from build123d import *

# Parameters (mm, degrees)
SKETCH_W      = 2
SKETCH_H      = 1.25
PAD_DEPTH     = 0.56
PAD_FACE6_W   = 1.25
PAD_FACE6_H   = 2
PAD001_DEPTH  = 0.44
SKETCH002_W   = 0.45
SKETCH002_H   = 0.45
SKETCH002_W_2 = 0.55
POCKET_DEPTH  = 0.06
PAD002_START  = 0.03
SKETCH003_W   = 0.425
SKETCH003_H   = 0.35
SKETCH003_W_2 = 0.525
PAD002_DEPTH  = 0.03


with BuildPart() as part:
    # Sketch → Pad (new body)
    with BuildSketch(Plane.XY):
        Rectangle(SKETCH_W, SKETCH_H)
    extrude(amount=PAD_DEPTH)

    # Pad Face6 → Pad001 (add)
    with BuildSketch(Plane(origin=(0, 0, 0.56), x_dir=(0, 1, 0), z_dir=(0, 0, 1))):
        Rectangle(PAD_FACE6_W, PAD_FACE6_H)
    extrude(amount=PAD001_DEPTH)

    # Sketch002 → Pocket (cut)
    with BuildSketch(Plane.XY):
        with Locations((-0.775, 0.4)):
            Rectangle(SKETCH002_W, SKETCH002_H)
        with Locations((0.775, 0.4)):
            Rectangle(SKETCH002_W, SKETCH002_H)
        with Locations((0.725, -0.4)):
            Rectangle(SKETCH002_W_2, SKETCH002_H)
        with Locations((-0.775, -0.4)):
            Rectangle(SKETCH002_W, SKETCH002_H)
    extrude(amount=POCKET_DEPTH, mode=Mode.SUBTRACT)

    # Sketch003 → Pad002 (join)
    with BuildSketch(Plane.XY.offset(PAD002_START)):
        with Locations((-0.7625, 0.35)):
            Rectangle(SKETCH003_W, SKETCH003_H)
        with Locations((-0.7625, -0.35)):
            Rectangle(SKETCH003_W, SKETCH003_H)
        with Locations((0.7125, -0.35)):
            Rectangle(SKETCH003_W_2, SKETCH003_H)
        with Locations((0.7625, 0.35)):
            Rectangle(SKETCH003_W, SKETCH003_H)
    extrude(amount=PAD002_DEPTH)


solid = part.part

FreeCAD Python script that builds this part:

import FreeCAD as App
import Part
import Sketcher
from FreeCAD import Vector

doc = App.newDocument("Part")
body = doc.addObject("PartDesign::Body", "Body")

sketch1 = body.newObject("Sketcher::SketchObject", "Sketch")
sketch1.AttachmentSupport = (doc.getObject("XY_Plane"), [""])
sketch1.MapMode = "FlatFace"
sketch1.addGeometry(Part.LineSegment(Vector(-1, 0.6, 0), Vector(-1, -0.6, 0)), False)
sketch1.addGeometry(Part.LineSegment(Vector(-1, -0.6, 0), Vector(1, -0.6, 0)), False)
sketch1.addGeometry(Part.LineSegment(Vector(1, -0.6, 0), Vector(1, 0.6, 0)), False)
sketch1.addGeometry(Part.LineSegment(Vector(1, 0.6, 0), Vector(-1, 0.6, 0)), False)
sketch1.addConstraint(Sketcher.Constraint("Coincident", 0, 2, 1, 1))
sketch1.addConstraint(Sketcher.Constraint("Coincident", 1, 2, 2, 1))
sketch1.addConstraint(Sketcher.Constraint("Coincident", 2, 2, 3, 1))
sketch1.addConstraint(Sketcher.Constraint("Coincident", 3, 2, 0, 1))
sketch1.addConstraint(Sketcher.Constraint("Vertical", 0))
sketch1.addConstraint(Sketcher.Constraint("Horizontal", 1))
sketch1.addConstraint(Sketcher.Constraint("Vertical", 2))
sketch1.addConstraint(Sketcher.Constraint("Horizontal", 3))
sketch1.addConstraint(Sketcher.Constraint("Symmetric", 0, 2, 2, 2, -1, 1))
sketch1.addConstraint(Sketcher.Constraint("DistanceX", 1, 1, 1, 2, 2.0))
sketch1.addConstraint(Sketcher.Constraint("DistanceY", 0, 2, 0, 1, 1.25))
pad1 = body.newObject("PartDesign::Pad", "Pad")
pad1.Profile = sketch1
pad1.Length = 0.56

sketch2 = body.newObject("Sketcher::SketchObject", "Sketch001")
sketch2.AttachmentSupport = (doc.getObject("XY_Plane"), [""])
sketch2.MapMode = "FlatFace"
sketch2.AttachmentOffset = App.Placement(Vector(0, 0, 0.56), App.Rotation())
sketch2.addGeometry(Part.LineSegment(Vector(-1, -0.6, 0), Vector(1, -0.6, 0)), False)
sketch2.addGeometry(Part.LineSegment(Vector(1, -0.6, 0), Vector(1, 0.6, 0)), False)
sketch2.addGeometry(Part.LineSegment(Vector(1, 0.6, 0), Vector(-1, 0.6, 0)), False)
sketch2.addGeometry(Part.LineSegment(Vector(-1, 0.6, 0), Vector(-1, -0.6, 0)), False)
sketch2.addConstraint(Sketcher.Constraint("Coincident", 0, 2, 1, 1))
sketch2.addConstraint(Sketcher.Constraint("Coincident", 1, 2, 2, 1))
sketch2.addConstraint(Sketcher.Constraint("Coincident", 2, 2, 3, 1))
sketch2.addConstraint(Sketcher.Constraint("Coincident", 3, 2, 0, 1))
sketch2.addConstraint(Sketcher.Constraint("Horizontal", 0))
sketch2.addConstraint(Sketcher.Constraint("Vertical", 1))
sketch2.addConstraint(Sketcher.Constraint("Horizontal", 2))
sketch2.addConstraint(Sketcher.Constraint("Vertical", 3))
sketch2.addConstraint(Sketcher.Constraint("Symmetric", 0, 2, 2, 2, -1, 1))
sketch2.addConstraint(Sketcher.Constraint("DistanceX", 0, 1, 0, 2, 2.0))
sketch2.addConstraint(Sketcher.Constraint("DistanceY", 1, 1, 1, 2, 1.25))
pad2 = body.newObject("PartDesign::Pad", "Pad001")
pad2.Profile = sketch2
pad2.Length = 0.44

sketch3 = body.newObject("Sketcher::SketchObject", "Sketch002")
sketch3.AttachmentSupport = (doc.getObject("XY_Plane"), [""])
sketch3.MapMode = "FlatFace"
sketch3.addGeometry(Part.LineSegment(Vector(-1, 0.62, 0), Vector(-1, 0.17, 0)), False)
sketch3.addGeometry(Part.LineSegment(Vector(-1, 0.17, 0), Vector(-0.55, 0.17, 0)), False)
sketch3.addGeometry(Part.LineSegment(Vector(-0.55, 0.17, 0), Vector(-0.55, 0.62, 0)), False)
sketch3.addGeometry(Part.LineSegment(Vector(-0.55, 0.62, 0), Vector(-1, 0.62, 0)), False)
sketch3.addGeometry(Part.LineSegment(Vector(0.55, 0.62, 0), Vector(0.55, 0.17, 0)), False)
sketch3.addGeometry(Part.LineSegment(Vector(0.55, 0.17, 0), Vector(1, 0.17, 0)), False)
sketch3.addGeometry(Part.LineSegment(Vector(1, 0.17, 0), Vector(1, 0.62, 0)), False)
sketch3.addGeometry(Part.LineSegment(Vector(1, 0.62, 0), Vector(0.55, 0.62, 0)), False)
sketch3.addGeometry(Part.LineSegment(Vector(0.45, -0.17, 0), Vector(0.45, -0.62, 0)), False)
sketch3.addGeometry(Part.LineSegment(Vector(0.45, -0.62, 0), Vector(1, -0.62, 0)), False)
sketch3.addGeometry(Part.LineSegment(Vector(1, -0.62, 0), Vector(1, -0.17, 0)), False)
sketch3.addGeometry(Part.LineSegment(Vector(1, -0.17, 0), Vector(0.45, -0.17, 0)), False)
sketch3.addGeometry(Part.LineSegment(Vector(-1, -0.17, 0), Vector(-1, -0.62, 0)), False)
sketch3.addGeometry(Part.LineSegment(Vector(-1, -0.62, 0), Vector(-0.55, -0.62, 0)), False)
sketch3.addGeometry(Part.LineSegment(Vector(-0.55, -0.62, 0), Vector(-0.55, -0.17, 0)), False)
sketch3.addGeometry(Part.LineSegment(Vector(-0.55, -0.17, 0), Vector(-1, -0.17, 0)), False)
sketch3.addConstraint(Sketcher.Constraint("Coincident", 0, 2, 1, 1))
sketch3.addConstraint(Sketcher.Constraint("Coincident", 1, 2, 2, 1))
sketch3.addConstraint(Sketcher.Constraint("Coincident", 2, 2, 3, 1))
sketch3.addConstraint(Sketcher.Constraint("Coincident", 3, 2, 0, 1))
sketch3.addConstraint(Sketcher.Constraint("Coincident", 4, 2, 5, 1))
sketch3.addConstraint(Sketcher.Constraint("Coincident", 5, 2, 6, 1))
sketch3.addConstraint(Sketcher.Constraint("Coincident", 6, 2, 7, 1))
sketch3.addConstraint(Sketcher.Constraint("Coincident", 7, 2, 4, 1))
sketch3.addConstraint(Sketcher.Constraint("Coincident", 8, 2, 9, 1))
sketch3.addConstraint(Sketcher.Constraint("Coincident", 9, 2, 10, 1))
sketch3.addConstraint(Sketcher.Constraint("Coincident", 10, 2, 11, 1))
sketch3.addConstraint(Sketcher.Constraint("Coincident", 11, 2, 8, 1))
sketch3.addConstraint(Sketcher.Constraint("Coincident", 12, 2, 13, 1))
sketch3.addConstraint(Sketcher.Constraint("Coincident", 13, 2, 14, 1))
sketch3.addConstraint(Sketcher.Constraint("Coincident", 14, 2, 15, 1))
sketch3.addConstraint(Sketcher.Constraint("Coincident", 15, 2, 12, 1))
sketch3.addConstraint(Sketcher.Constraint("Vertical", 0))
sketch3.addConstraint(Sketcher.Constraint("Horizontal", 1))
sketch3.addConstraint(Sketcher.Constraint("Vertical", 2))
sketch3.addConstraint(Sketcher.Constraint("Horizontal", 3))
sketch3.addConstraint(Sketcher.Constraint("Vertical", 4))
sketch3.addConstraint(Sketcher.Constraint("Horizontal", 5))
sketch3.addConstraint(Sketcher.Constraint("Vertical", 6))
sketch3.addConstraint(Sketcher.Constraint("Horizontal", 7))
sketch3.addConstraint(Sketcher.Constraint("Vertical", 8))
sketch3.addConstraint(Sketcher.Constraint("Horizontal", 9))
sketch3.addConstraint(Sketcher.Constraint("Vertical", 10))
sketch3.addConstraint(Sketcher.Constraint("Horizontal", 11))
sketch3.addConstraint(Sketcher.Constraint("Vertical", 12))
sketch3.addConstraint(Sketcher.Constraint("Horizontal", 13))
sketch3.addConstraint(Sketcher.Constraint("Vertical", 14))
sketch3.addConstraint(Sketcher.Constraint("Horizontal", 15))
sketch3.addConstraint(Sketcher.Constraint("Symmetric", 3, 2, 9, 2, -1, 1))
sketch3.addConstraint(Sketcher.Constraint("Symmetric", 6, 2, 12, 2, -1, 1))
sketch3.addConstraint(Sketcher.Constraint("Symmetric", 4, 2, 14, 2, -1, 1))
sketch3.addConstraint(Sketcher.Constraint("Symmetric", 1, 2, 4, 2, -2))
sketch3.addConstraint(Sketcher.Constraint("Symmetric", 3, 2, 6, 2, -2))
sketch3.addConstraint(Sketcher.Constraint("Horizontal", 11, 2, 14, 2))
sketch3.addConstraint(Sketcher.Constraint("Equal", 15, 0))
sketch3.addConstraint(Sketcher.Constraint("DistanceX", 0, 2, -1, 1, 1.0))
sketch3.addConstraint(Sketcher.Constraint("DistanceX", 1, 2, 8, 2, 1.0))
sketch3.addConstraint(Sketcher.Constraint("DistanceX", 1, 1, 1, 2, 0.45))
sketch3.addConstraint(Sketcher.Constraint("DistanceY", 8, 2, 4, 2, 0.8))
pocket1 = body.newObject("PartDesign::Pocket", "Pocket")
pocket1.Profile = sketch3
pocket1.Length = 0.06
pocket1.Reversed = True

sketch4 = body.newObject("Sketcher::SketchObject", "Sketch003")
sketch4.AttachmentSupport = (doc.getObject("XY_Plane"), [""])
sketch4.MapMode = "FlatFace"
sketch4.AttachmentOffset = App.Placement(Vector(0, 0, 0.03), App.Rotation())
sketch4.addGeometry(Part.LineSegment(Vector(-0.97, 0.53, 0), Vector(-0.97, 0.17, 0)), False)
sketch4.addGeometry(Part.LineSegment(Vector(-0.97, 0.17, 0), Vector(-0.55, 0.17, 0)), False)
sketch4.addGeometry(Part.LineSegment(Vector(-0.55, 0.17, 0), Vector(-0.55, 0.53, 0)), False)
sketch4.addGeometry(Part.LineSegment(Vector(-0.55, 0.53, 0), Vector(-0.97, 0.53, 0)), False)
sketch4.addGeometry(Part.LineSegment(Vector(-0.97, -0.17, 0), Vector(-0.97, -0.53, 0)), False)
sketch4.addGeometry(Part.LineSegment(Vector(-0.97, -0.53, 0), Vector(-0.55, -0.53, 0)), False)
sketch4.addGeometry(Part.LineSegment(Vector(-0.55, -0.53, 0), Vector(-0.55, -0.17, 0)), False)
sketch4.addGeometry(Part.LineSegment(Vector(-0.55, -0.17, 0), Vector(-0.97, -0.17, 0)), False)
sketch4.addGeometry(Part.LineSegment(Vector(0.45, -0.17, 0), Vector(0.45, -0.53, 0)), False)
sketch4.addGeometry(Part.LineSegment(Vector(0.45, -0.53, 0), Vector(0.97, -0.53, 0)), False)
sketch4.addGeometry(Part.LineSegment(Vector(0.97, -0.53, 0), Vector(0.97, -0.17, 0)), False)
sketch4.addGeometry(Part.LineSegment(Vector(0.97, -0.17, 0), Vector(0.45, -0.17, 0)), False)
sketch4.addGeometry(Part.LineSegment(Vector(0.55, 0.53, 0), Vector(0.55, 0.17, 0)), False)
sketch4.addGeometry(Part.LineSegment(Vector(0.55, 0.17, 0), Vector(0.97, 0.17, 0)), False)
sketch4.addGeometry(Part.LineSegment(Vector(0.97, 0.17, 0), Vector(0.97, 0.53, 0)), False)
sketch4.addGeometry(Part.LineSegment(Vector(0.97, 0.53, 0), Vector(0.55, 0.53, 0)), False)
sketch4.addConstraint(Sketcher.Constraint("Coincident", 0, 2, 1, 1))
sketch4.addConstraint(Sketcher.Constraint("Coincident", 1, 2, 2, 1))
sketch4.addConstraint(Sketcher.Constraint("Coincident", 2, 2, 3, 1))
sketch4.addConstraint(Sketcher.Constraint("Coincident", 3, 2, 0, 1))
sketch4.addConstraint(Sketcher.Constraint("Coincident", 4, 2, 5, 1))
sketch4.addConstraint(Sketcher.Constraint("Coincident", 5, 2, 6, 1))
sketch4.addConstraint(Sketcher.Constraint("Coincident", 6, 2, 7, 1))
sketch4.addConstraint(Sketcher.Constraint("Coincident", 7, 2, 4, 1))
sketch4.addConstraint(Sketcher.Constraint("Coincident", 8, 2, 9, 1))
sketch4.addConstraint(Sketcher.Constraint("Coincident", 9, 2, 10, 1))
sketch4.addConstraint(Sketcher.Constraint("Coincident", 10, 2, 11, 1))
sketch4.addConstraint(Sketcher.Constraint("Coincident", 11, 2, 8, 1))
sketch4.addConstraint(Sketcher.Constraint("Coincident", 12, 2, 13, 1))
sketch4.addConstraint(Sketcher.Constraint("Coincident", 13, 2, 14, 1))
sketch4.addConstraint(Sketcher.Constraint("Coincident", 14, 2, 15, 1))
sketch4.addConstraint(Sketcher.Constraint("Coincident", 15, 2, 12, 1))
sketch4.addConstraint(Sketcher.Constraint("Vertical", 0))
sketch4.addConstraint(Sketcher.Constraint("Horizontal", 1))
sketch4.addConstraint(Sketcher.Constraint("Vertical", 2))
sketch4.addConstraint(Sketcher.Constraint("Horizontal", 3))
sketch4.addConstraint(Sketcher.Constraint("Vertical", 4))
sketch4.addConstraint(Sketcher.Constraint("Horizontal", 5))
sketch4.addConstraint(Sketcher.Constraint("Vertical", 6))
sketch4.addConstraint(Sketcher.Constraint("Horizontal", 7))
sketch4.addConstraint(Sketcher.Constraint("Vertical", 8))
sketch4.addConstraint(Sketcher.Constraint("Horizontal", 9))
sketch4.addConstraint(Sketcher.Constraint("Vertical", 10))
sketch4.addConstraint(Sketcher.Constraint("Horizontal", 11))
sketch4.addConstraint(Sketcher.Constraint("Vertical", 12))
sketch4.addConstraint(Sketcher.Constraint("Horizontal", 13))
sketch4.addConstraint(Sketcher.Constraint("Vertical", 14))
sketch4.addConstraint(Sketcher.Constraint("Horizontal", 15))
sketch4.addConstraint(Sketcher.Constraint("Symmetric", 3, 2, 9, 2, -1, 1))
sketch4.addConstraint(Sketcher.Constraint("Symmetric", 6, 2, 12, 2, -1, 1))
sketch4.addConstraint(Sketcher.Constraint("Symmetric", 4, 2, 14, 2, -1, 1))
sketch4.addConstraint(Sketcher.Constraint("Symmetric", 4, 2, 9, 2, -2))
sketch4.addConstraint(Sketcher.Constraint("Symmetric", 1, 2, 12, 2, -2))
sketch4.addConstraint(Sketcher.Constraint("Horizontal", 7, 2, 10, 2))
sketch4.addConstraint(Sketcher.Constraint("DistanceX", 5, 2, 8, 2, 1.0))
sketch4.addConstraint(Sketcher.Constraint("DistanceY", 0, 2, 0, 1, 0.35))
sketch4.addConstraint(Sketcher.Constraint("DistanceY", 4, 2, 0, 2, 0.7))
sketch4.addConstraint(Sketcher.Constraint("DistanceX", 11, 2, 12, 2, 0.1))
sketch4.addConstraint(Sketcher.Constraint("DistanceX", 1, 1, 1, 2, 0.425))
pad3 = body.newObject("PartDesign::Pad", "Pad002")
pad3.Profile = sketch4
pad3.Length = 0.03

doc.recompute()
